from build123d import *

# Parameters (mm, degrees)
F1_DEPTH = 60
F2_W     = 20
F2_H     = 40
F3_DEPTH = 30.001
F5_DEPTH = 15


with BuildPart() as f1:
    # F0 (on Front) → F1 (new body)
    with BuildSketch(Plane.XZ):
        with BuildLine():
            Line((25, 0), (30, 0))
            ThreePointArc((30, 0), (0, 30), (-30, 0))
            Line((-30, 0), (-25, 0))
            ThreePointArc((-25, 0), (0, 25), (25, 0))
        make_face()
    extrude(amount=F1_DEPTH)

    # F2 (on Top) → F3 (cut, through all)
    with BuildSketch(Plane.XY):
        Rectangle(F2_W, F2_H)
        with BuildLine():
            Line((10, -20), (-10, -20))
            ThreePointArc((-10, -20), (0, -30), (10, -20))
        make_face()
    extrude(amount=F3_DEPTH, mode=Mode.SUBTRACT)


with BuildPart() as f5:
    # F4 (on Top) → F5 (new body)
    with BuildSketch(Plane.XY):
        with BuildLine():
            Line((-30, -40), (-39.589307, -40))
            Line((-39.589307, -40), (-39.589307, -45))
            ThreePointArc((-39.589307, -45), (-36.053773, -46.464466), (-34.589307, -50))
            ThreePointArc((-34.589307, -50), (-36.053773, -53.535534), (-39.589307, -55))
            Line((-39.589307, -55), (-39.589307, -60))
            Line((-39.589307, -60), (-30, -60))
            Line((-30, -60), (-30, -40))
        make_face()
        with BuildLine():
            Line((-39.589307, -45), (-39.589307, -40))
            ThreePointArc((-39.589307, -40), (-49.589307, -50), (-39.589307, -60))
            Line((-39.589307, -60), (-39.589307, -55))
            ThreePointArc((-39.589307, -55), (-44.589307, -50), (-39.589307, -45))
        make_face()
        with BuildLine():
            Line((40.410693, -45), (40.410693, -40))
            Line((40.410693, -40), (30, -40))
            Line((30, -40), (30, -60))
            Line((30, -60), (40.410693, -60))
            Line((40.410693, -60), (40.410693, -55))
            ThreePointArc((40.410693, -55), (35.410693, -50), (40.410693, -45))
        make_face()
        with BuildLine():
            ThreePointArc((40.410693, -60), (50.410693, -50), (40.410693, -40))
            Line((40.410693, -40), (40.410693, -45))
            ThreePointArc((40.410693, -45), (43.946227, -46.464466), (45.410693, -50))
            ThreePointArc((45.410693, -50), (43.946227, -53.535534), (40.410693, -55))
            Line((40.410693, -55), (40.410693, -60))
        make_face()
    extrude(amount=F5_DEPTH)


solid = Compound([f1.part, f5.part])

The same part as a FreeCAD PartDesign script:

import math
import FreeCAD as App
import Part
import Sketcher

V = App.Vector

doc = App.newDocument("Part")
body = doc.addObject("PartDesign::Body", "Body")

sketch1 = body.newObject("Sketcher::SketchObject", "Sketch")
sketch1.AttachmentSupport = (doc.getObject("XZ_Plane"), [""])
sketch1.MapMode = "FlatFace"
sketch1.addGeometry(Part.LineSegment(V(25, 0, 0), V(30, 0, 0)), False)
sketch1.addGeometry(Part.ArcOfCircle(Part.Circle(V(0, 0, 0), V(0, 0, 1), 30), math.radians(0), math.radians(180)), False)
sketch1.addGeometry(Part.LineSegment(V(-30, 0, 0), V(-25, 0, 0)), False)
sketch1.addGeometry(Part.ArcOfCircle(Part.Circle(V(0, 0, 0), V(0, 0, 1), 25), math.radians(0), math.radians(180)), False)
sketch1.addConstraint(Sketcher.Constraint("Coincident", 0, 2, 1, 1))
sketch1.addConstraint(Sketcher.Constraint("Coincident", 1, 2, 2, 1))
sketch1.addConstraint(Sketcher.Constraint("Coincident", 2, 2, 3, 2))
sketch1.addConstraint(Sketcher.Constraint("Coincident", 3, 1, 0, 1))
sketch1.addConstraint(Sketcher.Constraint("Horizontal", 0))
sketch1.addConstraint(Sketcher.Constraint("Horizontal", 2))
sketch1.addConstraint(Sketcher.Constraint("Coincident", 1, 3, -1, 1))
sketch1.addConstraint(Sketcher.Constraint("Coincident", 3, 3, -1, 1))
sketch1.addConstraint(Sketcher.Constraint("PointOnObject", 0, 2, -1))
sketch1.addConstraint(Sketcher.Constraint("PointOnObject", 1, 2, -1))
sketch1.addConstraint(Sketcher.Constraint("Radius", 1, 30.0))
sketch1.addConstraint(Sketcher.Constraint("Radius", 3, 25.0))
pad1 = body.newObject("PartDesign::Pad", "Pad")
pad1.Profile = sketch1
pad1.Length = 60

sketch2 = body.newObject("Sketcher::SketchObject", "Sketch001")
sketch2.AttachmentSupport = (doc.getObject("XY_Plane"), [""])
sketch2.MapMode = "FlatFace"
sketch2.addGeometry(Part.LineSegment(V(-10, 20, 0), V(-10, -20, 0)), False)
sketch2.addGeometry(Part.ArcOfCircle(Part.Circle(V(0, -20, 0), V(0, 0, 1), 10), math.radians(180), math.radians(360)), False)
sketch2.addGeometry(Part.LineSegment(V(10, -20, 0), V(10, 20, 0)), False)
sketch2.addGeometry(Part.LineSegment(V(10, 20, 0), V(-10, 20, 0)), False)
sketch2.addConstraint(Sketcher.Constraint("Tangent", 0, 2, 1, 1))
sketch2.addConstraint(Sketcher.Constraint("Tangent", 1, 2, 2, 1))
sketch2.addConstraint(Sketcher.Constraint("Coincident", 2, 2, 3, 1))
sketch2.addConstraint(Sketcher.Constraint("Coincident", 3, 2, 0, 1))
sketch2.addConstraint(Sketcher.Constraint("Vertical", 0))
sketch2.addConstraint(Sketcher.Constraint("Vertical", 2))
sketch2.addConstraint(Sketcher.Constraint("Horizontal", 3))
sketch2.addConstraint(Sketcher.Constraint("Symmetric", 0, 2, 2, 2, -1, 1))
sketch2.addConstraint(Sketcher.Constraint("Radius", 1, 10.0))
sketch2.addConstraint(Sketcher.Constraint("DistanceY", 0, 2, 0, 1, 40.0))
pocket1 = body.newObject("PartDesign::Pocket", "Pocket")
pocket1.Profile = sketch2
pocket1.Type = "ThroughAll"
pocket1.Reversed = True
body2 = doc.addObject("PartDesign::Body", "Body001")
body2.AllowCompound = True

sketch3 = body2.newObject("Sketcher::SketchObject", "Sketch002")
sketch3.AttachmentSupport = (doc.getObject("XY_Plane001"), [""])
sketch3.MapMode = "FlatFace"
sketch3.addGeometry(Part.LineSegment(V(-30, -40, 0), V(-39.6, -40, 0)), False)
sketch3.addGeometry(Part.ArcOfCircle(Part.Circle(V(-39.6, -50, 0), V(0, 0, 1), 10), math.radians(90), math.radians(270)), False)
sketch3.addGeometry(Part.LineSegment(V(-39.6, -60, 0), V(-30, -60, 0)), False)
sketch3.addGeometry(Part.LineSegment(V(-30, -60, 0), V(-30, -40, 0)), False)
sketch3.addGeometry(Part.ArcOfCircle(Part.Circle(V(-39.6, -50, 0), V(0, 0, 1), 5), math.radians(0), math.radians(90)), False)
sketch3.addGeometry(Part.ArcOfCircle(Part.Circle(V(-39.6, -50, 0), V(0, 0, 1), 5), math.radians(-90), math.radians(0)), False)
sketch3.addGeometry(Part.ArcOfCircle(Part.Circle(V(-39.6, -50, 0), V(0, 0, 1), 5), math.radians(90), math.radians(270)), False)
sketch3.addGeometry(Part.LineSegment(V(40.4, -40, 0), V(30, -40, 0)), False)
sketch3.addGeometry(Part.LineSegment(V(30, -40, 0), V(30, -60, 0)), False)
sketch3.addGeometry(Part.LineSegment(V(30, -60, 0), V(40.4, -60, 0)), False)
sketch3.addGeometry(Part.ArcOfCircle(Part.Circle(V(40.4, -50, 0), V(0, 0, 1), 10), math.radians(-90), math.radians(90)), False)
sketch3.addGeometry(Part.ArcOfCircle(Part.Circle(V(40.4, -50, 0), V(0, 0, 1), 5), math.radians(90), math.radians(270)), False)
sketch3.addGeometry(Part.ArcOfCircle(Part.Circle(V(40.4, -50, 0), V(0, 0, 1), 5), math.radians(0), math.radians(90)), False)
sketch3.addGeometry(Part.ArcOfCircle(Part.Circle(V(40.4, -50, 0), V(0, 0, 1), 5), math.radians(-90), math.radians(0)), False)
sketch3.addConstraint(Sketcher.Constraint("Tangent", 0, 2, 1, 1))
sketch3.addConstraint(Sketcher.Constraint("Tangent", 1, 2, 2, 1))
sketch3.addConstraint(Sketcher.Constraint("Coincident", 2, 2, 3, 1))
sketch3.addConstraint(Sketcher.Constraint("Coincident", 3, 2, 0, 1))
sketch3.addConstraint(Sketcher.Constraint("Tangent", 4, 1, 5, 2))
sketch3.addConstraint(Sketcher.Constraint("Tangent", 5, 1, 6, 2))
sketch3.addConstraint(Sketcher.Constraint("Tangent", 6, 1, 4, 2))
sketch3.addConstraint(Sketcher.Constraint("Coincident", 7, 2, 8, 1))
sketch3.addConstraint(Sketcher.Constraint("Coincident", 8, 2, 9, 1))
sketch3.addConstraint(Sketcher.Constraint("Tangent", 9, 2, 10, 1))
sketch3.addConstraint(Sketcher.Constraint("Tangent", 10, 2, 7, 1))
sketch3.addConstraint(Sketcher.Constraint("Tangent", 11, 1, 12, 2))
sketch3.addConstraint(Sketcher.Constraint("Tangent", 12, 1, 13, 2))
sketch3.addConstraint(Sketcher.Constraint("Tangent", 13, 1, 11, 2))
sketch3.addConstraint(Sketcher.Constraint("Horizontal", 0))
sketch3.addConstraint(Sketcher.Constraint("Horizontal", 2))
sketch3.addConstraint(Sketcher.Constraint("Vertical", 3))
sketch3.addConstraint(Sketcher.Constraint("Horizontal", 7))
sketch3.addConstraint(Sketcher.Constraint("Vertical", 8))
sketch3.addConstraint(Sketcher.Constraint("Horizontal", 9))
sketch3.addConstraint(Sketcher.Constraint("Coincident", 4, 3, 1, 3))
sketch3.addConstraint(Sketcher.Constraint("Coincident", 11, 3, 10, 3))
sketch3.addConstraint(Sketcher.Constraint("Equal", 1, 10))
sketch3.addConstraint(Sketcher.Constraint("Equal", 6, 11))
sketch3.addConstraint(Sketcher.Constraint("Symmetric", 3, 2, 7, 2, -2))
sketch3.addConstraint(Sketcher.Constraint("Horizontal", 13, 3, 4, 1))
sketch3.addConstraint(Sketcher.Constraint("Horizontal", 4, 1, 12, 1))
sketch3.addConstraint(Sketcher.Constraint("Vertical", 1, 2, 5, 1))
sketch3.addConstraint(Sketcher.Constraint("Vertical", 5, 1, 6, 1))
sketch3.addConstraint(Sketcher.Constraint("Vertical", 10, 2, 11, 1))
sketch3.addConstraint(Sketcher.Constraint("Vertical", 11, 1, 13, 1))
sketch3.addConstraint(Sketcher.Constraint("Radius", 1, 10.0))
sketch3.addConstraint(Sketcher.Constraint("Radius", 4, 5.0))
sketch3.addConstraint(Sketcher.Constraint("DistanceY", 1, 3, -1, 1, 50.0))
sketch3.addConstraint(Sketcher.Constraint("DistanceX", 2, 2, -1, 1, 30.0))
sketch3.addConstraint(Sketcher.Constraint("DistanceX", 4, 3, 10, 3, 80.0))
sketch3.addConstraint(Sketcher.Constraint("DistanceX", 0, 2, 0, 1, 9.589307))
pad2 = body2.newObject("PartDesign::Pad", "Pad001")
pad2.Profile = sketch3
pad2.Length = 15

doc.recompute()
